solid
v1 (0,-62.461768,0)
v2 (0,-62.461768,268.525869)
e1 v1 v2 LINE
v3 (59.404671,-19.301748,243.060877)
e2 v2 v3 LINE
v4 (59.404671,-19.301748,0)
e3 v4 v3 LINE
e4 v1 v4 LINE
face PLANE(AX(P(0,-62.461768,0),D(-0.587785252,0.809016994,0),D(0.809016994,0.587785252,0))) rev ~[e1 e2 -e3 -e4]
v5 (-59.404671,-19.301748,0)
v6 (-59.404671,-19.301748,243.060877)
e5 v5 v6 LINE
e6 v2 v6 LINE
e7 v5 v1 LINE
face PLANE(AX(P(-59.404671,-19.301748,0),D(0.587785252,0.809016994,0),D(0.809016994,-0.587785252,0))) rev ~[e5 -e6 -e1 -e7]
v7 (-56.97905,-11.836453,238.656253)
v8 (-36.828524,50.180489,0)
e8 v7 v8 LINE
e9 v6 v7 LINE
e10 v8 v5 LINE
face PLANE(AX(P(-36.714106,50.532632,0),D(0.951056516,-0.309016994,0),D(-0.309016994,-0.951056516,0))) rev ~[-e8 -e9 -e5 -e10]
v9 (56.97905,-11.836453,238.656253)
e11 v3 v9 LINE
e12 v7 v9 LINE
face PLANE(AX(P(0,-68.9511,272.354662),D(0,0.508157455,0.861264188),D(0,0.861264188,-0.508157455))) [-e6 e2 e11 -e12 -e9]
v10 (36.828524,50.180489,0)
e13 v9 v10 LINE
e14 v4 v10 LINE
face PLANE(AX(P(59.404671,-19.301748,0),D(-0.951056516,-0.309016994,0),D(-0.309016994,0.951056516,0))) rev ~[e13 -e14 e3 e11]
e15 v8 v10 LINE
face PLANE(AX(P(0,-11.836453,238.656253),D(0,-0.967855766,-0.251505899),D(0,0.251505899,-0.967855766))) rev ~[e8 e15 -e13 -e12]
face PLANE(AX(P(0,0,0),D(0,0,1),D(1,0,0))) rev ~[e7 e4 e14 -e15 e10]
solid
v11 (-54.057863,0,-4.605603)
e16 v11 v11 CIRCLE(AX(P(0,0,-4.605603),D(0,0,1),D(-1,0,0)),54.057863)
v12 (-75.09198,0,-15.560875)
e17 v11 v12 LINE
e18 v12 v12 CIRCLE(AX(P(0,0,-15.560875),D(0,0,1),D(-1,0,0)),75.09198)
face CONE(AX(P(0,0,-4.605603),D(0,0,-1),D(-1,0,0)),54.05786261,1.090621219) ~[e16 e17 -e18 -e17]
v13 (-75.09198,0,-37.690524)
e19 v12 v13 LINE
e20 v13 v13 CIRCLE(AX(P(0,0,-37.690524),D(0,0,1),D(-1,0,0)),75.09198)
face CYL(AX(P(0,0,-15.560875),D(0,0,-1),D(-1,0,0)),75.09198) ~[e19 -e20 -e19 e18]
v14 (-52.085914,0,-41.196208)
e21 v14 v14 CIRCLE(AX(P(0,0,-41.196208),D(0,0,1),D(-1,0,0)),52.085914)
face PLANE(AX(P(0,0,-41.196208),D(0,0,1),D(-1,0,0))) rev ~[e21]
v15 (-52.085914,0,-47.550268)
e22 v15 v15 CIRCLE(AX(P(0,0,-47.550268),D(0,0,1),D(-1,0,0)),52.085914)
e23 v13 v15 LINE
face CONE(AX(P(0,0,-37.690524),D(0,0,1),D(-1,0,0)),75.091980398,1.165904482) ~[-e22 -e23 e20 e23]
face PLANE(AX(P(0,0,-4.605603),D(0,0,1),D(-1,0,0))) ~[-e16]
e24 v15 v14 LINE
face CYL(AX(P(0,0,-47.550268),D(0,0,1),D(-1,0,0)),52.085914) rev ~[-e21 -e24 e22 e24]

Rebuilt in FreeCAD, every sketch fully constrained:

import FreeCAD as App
import Part
import Sketcher
from FreeCAD import Vector
Q = App.Units.Quantity


def add_polygon(sketch, points):
    """Adds a closed chain of lines whose ends are joined by coincident constraints."""
    first, n = sketch.GeometryCount, len(points)
    for a, b in zip(points, points[1:] + points[:1]):
        sketch.addGeometry(Part.LineSegment(App.Vector(*a, 0), App.Vector(*b, 0)), False)
    for i in range(n):
        sketch.addConstraint(Sketcher.Constraint("Coincident", first + i, 2, first + (i + 1) % n, 1))

doc = App.newDocument("Part")
params = doc.addObject("Spreadsheet::Sheet", "Params")
for row, (alias, value) in enumerate([
    ("pad1_length", "10.8 in"),
    ("revolution_angle", "360 deg"),
], start=1):
    params.set(f"A{row}", alias)
    params.set(f"B{row}", "=" + value)
    params.setAlias(f"B{row}", alias)

body = doc.addObject("PartDesign::Body", "Body")

# Sketch on XY plane
sketch1 = body.newObject("Sketcher::SketchObject", "Sketch")
sketch1.AttachmentSupport = (doc.getObject("XY_Plane"), [""])
sketch1.MapMode = "FlatFace"
add_polygon(sketch1, [(36.714106, 50.532632), (-36.714106, 50.532632), (-59.404671, -19.301748), (0, -62.461768), (59.404671, -19.301748)])  # lines 0-4
sketch1.addConstraint([
    Sketcher.Constraint("Horizontal", 0),
    Sketcher.Constraint("Symmetric", 1, 2, 3, 2, -2),
    Sketcher.Constraint("PointOnObject", 2, 2, -2),
    Sketcher.Constraint("Equal", 1, 2),
    Sketcher.Constraint("Equal", 3, 4),
    Sketcher.Constraint("Angle", 1, Q("-108 deg")),
    Sketcher.Constraint("Angle", 2, Q("-36 deg")),
    Sketcher.Constraint("DistanceX", 0, 2, 0, 1, Q("73.428212 mm")),
    Sketcher.Constraint("DistanceY", -1, 1, 0, 2, Q("50.532632 mm")),
])
pad1 = body.newObject("PartDesign::Pad", "Pad")
pad1.Profile = sketch1
pad1.setExpression("Length", "Params.pad1_length")

# Sketch on YZ plane
sketch2 = body.newObject("Sketcher::SketchObject", "Sketch001")
sketch2.AttachmentSupport = (doc.getObject("YZ_Plane"), [""])
sketch2.MapMode = "FlatFace"
add_polygon(sketch2, [(53.459812, -12.61963), (110.706852, 303.127423), (-68.9511, 303.127423), (-68.9511, 272.354662), (-11.836453, 238.656253)])  # lines 0-4
sketch2.addConstraint([
    Sketcher.Constraint("Horizontal", 1),
    Sketcher.Constraint("Vertical", 2),
    Sketcher.Constraint("Distance", 3, Q("66.314898 mm")),
    Sketcher.Constraint("DistanceX", 1, 2, 1, 1, Q("179.657952 mm")),
    Sketcher.Constraint("DistanceY", 2, 2, 2, 1, Q("30.772761 mm")),
    Sketcher.Constraint("DistanceX", 1, 2, -1, 1, Q("68.9511 mm")),
    Sketcher.Constraint("Distance", 4, Q("259.621208 mm")),
    Sketcher.Constraint("DistanceX", -1, 1, 4, 2, Q("53.459812 mm")),
    Sketcher.Constraint("DistanceY", 4, 2, -1, 1, Q("12.61963 mm")),
    Sketcher.Constraint("DistanceY", 3, 2, 2, 2, Q("33.69841 mm")),
])
pocket1 = body.newObject("PartDesign::Pocket", "Pocket")
pocket1.Profile = sketch2
pocket1.Type = "ThroughAll"
pocket1.Midplane = True
body2 = doc.addObject("PartDesign::Body", "Body001")

# Sketch on XZ plane
sketch3 = body2.newObject("Sketcher::SketchObject", "Sketch002")
sketch3.AttachmentSupport = (doc.getObject("XZ_Plane001"), [""])
sketch3.MapMode = "FlatFace"
add_polygon(sketch3, [(0, -41.196208), (0, -4.605603), (-54.057863, -4.605603), (-75.09198, -15.560875), (-75.09198, -37.690524), (-52.085914, -47.550268), (-52.085914, -41.196208)])  # lines 0-6
sketch3.addConstraint([
    Sketcher.Constraint("Vertical", 0),
    Sketcher.Constraint("Horizontal", 1),
    Sketcher.Constraint("Vertical", 3),
    Sketcher.Constraint("Vertical", 5),
    Sketcher.Constraint("Horizontal", 6),
    Sketcher.Constraint("PointOnObject", 0, 2, -2),
    Sketcher.Constraint("DistanceY", 3, 2, 3, 1, Q("22.129649 mm")),
    Sketcher.Constraint("DistanceY", 5, 1, 5, 2, Q("6.35406 mm")),
    Sketcher.Constraint("DistanceX", 1, 2, 1, 1, Q("54.057863 mm")),
    Sketcher.Constraint("DistanceX", 6, 1, 6, 2, Q("52.085914 mm")),
    Sketcher.Constraint("DistanceY", 0, 1, 0, 2, Q("36.590606 mm")),
    Sketcher.Constraint("DistanceX", 2, 2, -1, 1, Q("75.09198 mm")),
    Sketcher.Constraint("DistanceY", 4, 2, -1, 1, Q("47.550268 mm")),
    Sketcher.Constraint("DistanceY", 2, 2, 1, 2, Q("10.955272 mm")),
])
revolution = body2.newObject("PartDesign::Revolution", "Revolution")
revolution.Profile = sketch3
revolution.ReferenceAxis = (sketch3, ["V_Axis"])
revolution.setExpression("Angle", "Params.revolution_angle")

doc.recompute()
